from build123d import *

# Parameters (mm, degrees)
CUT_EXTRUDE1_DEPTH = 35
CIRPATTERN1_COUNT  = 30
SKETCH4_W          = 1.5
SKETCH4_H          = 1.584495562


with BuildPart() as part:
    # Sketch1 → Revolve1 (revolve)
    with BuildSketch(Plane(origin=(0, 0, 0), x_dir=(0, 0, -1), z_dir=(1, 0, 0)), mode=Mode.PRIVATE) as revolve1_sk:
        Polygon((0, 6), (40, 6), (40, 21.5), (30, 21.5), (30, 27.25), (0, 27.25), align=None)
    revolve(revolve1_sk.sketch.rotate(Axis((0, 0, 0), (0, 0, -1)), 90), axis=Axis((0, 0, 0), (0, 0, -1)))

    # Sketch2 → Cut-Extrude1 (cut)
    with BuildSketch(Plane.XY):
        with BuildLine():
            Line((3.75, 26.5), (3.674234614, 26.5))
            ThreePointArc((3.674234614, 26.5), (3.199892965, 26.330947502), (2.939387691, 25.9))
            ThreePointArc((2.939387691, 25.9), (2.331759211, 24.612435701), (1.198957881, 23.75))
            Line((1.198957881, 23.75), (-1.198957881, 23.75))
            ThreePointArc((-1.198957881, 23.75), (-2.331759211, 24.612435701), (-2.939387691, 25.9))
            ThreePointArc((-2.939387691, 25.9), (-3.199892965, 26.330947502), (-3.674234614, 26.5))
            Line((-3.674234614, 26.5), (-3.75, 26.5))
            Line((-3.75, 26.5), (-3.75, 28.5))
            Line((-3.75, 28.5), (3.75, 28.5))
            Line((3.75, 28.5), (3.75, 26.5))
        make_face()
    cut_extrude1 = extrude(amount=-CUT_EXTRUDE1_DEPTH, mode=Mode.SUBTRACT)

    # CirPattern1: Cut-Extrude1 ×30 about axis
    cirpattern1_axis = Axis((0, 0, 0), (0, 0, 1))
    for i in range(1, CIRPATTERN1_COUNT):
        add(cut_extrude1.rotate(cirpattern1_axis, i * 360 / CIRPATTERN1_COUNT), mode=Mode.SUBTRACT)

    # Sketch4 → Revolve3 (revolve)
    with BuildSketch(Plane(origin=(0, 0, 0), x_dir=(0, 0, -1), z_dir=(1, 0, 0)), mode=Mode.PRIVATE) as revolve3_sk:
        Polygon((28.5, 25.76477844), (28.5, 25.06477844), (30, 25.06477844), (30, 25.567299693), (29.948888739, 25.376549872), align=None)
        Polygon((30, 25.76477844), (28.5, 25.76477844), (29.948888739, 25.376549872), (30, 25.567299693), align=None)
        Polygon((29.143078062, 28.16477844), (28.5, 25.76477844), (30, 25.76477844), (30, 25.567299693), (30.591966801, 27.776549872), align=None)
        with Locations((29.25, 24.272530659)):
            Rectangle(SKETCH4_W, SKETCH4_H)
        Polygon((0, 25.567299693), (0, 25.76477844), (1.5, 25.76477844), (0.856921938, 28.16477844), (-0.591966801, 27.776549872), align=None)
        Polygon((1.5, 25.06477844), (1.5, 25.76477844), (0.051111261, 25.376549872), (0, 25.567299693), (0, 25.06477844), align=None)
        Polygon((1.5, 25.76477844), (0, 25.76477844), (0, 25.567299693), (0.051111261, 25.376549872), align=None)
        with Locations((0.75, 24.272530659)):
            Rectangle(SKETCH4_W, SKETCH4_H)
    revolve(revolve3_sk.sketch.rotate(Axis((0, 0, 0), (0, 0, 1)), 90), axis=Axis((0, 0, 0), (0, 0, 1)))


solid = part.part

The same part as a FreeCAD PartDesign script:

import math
import FreeCAD as App
import Part
import Sketcher
Q = App.Units.Quantity


def add_polygon(sketch, points):
    """Adds a closed chain of lines whose ends are joined by coincident constraints."""
    first, n = sketch.GeometryCount, len(points)
    for a, b in zip(points, points[1:] + points[:1]):
        sketch.addGeometry(Part.LineSegment(App.Vector(*a, 0), App.Vector(*b, 0)), False)
    for i in range(n):
        sketch.addConstraint(Sketcher.Constraint("Coincident", first + i, 2, first + (i + 1) % n, 1))

doc = App.newDocument("Part")
body = doc.addObject("PartDesign::Body", "Body")

# Sketch on YZ plane
sketch1 = doc.addObject("Sketcher::SketchObject", "Sketch")
body.addObject(sketch1)
sketch1.AttachmentSupport = (doc.YZ_Plane, [""])
sketch1.MapMode = "FlatFace"
add_polygon(sketch1, [(6, 0), (6, -40), (21.5, -40), (21.5, -30), (27.25, -30), (27.25, 0)])  # lines 0-5
sketch1.addConstraint(Sketcher.Constraint("Vertical", 0))
sketch1.addConstraint(Sketcher.Constraint("Horizontal", 1))
sketch1.addConstraint(Sketcher.Constraint("Vertical", 2))
sketch1.addConstraint(Sketcher.Constraint("Horizontal", 3))
sketch1.addConstraint(Sketcher.Constraint("Vertical", 4))
sketch1.addConstraint(Sketcher.Constraint("Horizontal", 5))
sketch1.addConstraint(Sketcher.Constraint("PointOnObject", 4, 2, -1))
sketch1.addConstraint(Sketcher.Constraint("DistanceY", 0, 2, 0, 1, Q("40 mm")))
sketch1.addConstraint(Sketcher.Constraint("DistanceY", 2, 1, 2, 2, Q("10 mm")))
sketch1.addConstraint(Sketcher.Constraint("DistanceX", 1, 1, 1, 2, Q("15.5 mm")))
sketch1.addConstraint(Sketcher.Constraint("DistanceX", -1, 1, 0, 2, Q("6 mm")))
sketch1.addConstraint(Sketcher.Constraint("DistanceX", 3, 1, 3, 2, Q("5.75 mm")))
revolution = doc.addObject("PartDesign::Revolution", "Revolution")
body.addObject(revolution)
revolution.Profile = sketch1
revolution.ReferenceAxis = (sketch1, ["V_Axis"])
revolution.Angle = 360

# Sketch on XY plane
sketch2 = doc.addObject("Sketcher::SketchObject", "Sketch001")
body.addObject(sketch2)
sketch2.AttachmentSupport = (doc.XY_Plane, [""])
sketch2.MapMode = "FlatFace"
sketch2.addGeometry(Part.LineSegment(App.Vector(3.674235, 26.5, 0), App.Vector(3.75, 26.5, 0)), False)
sketch2.addGeometry(Part.LineSegment(App.Vector(3.75, 26.5, 0), App.Vector(3.75, 28.5, 0)), False)
sketch2.addGeometry(Part.LineSegment(App.Vector(3.75, 28.5, 0), App.Vector(-3.75, 28.5, 0)), False)
sketch2.addGeometry(Part.LineSegment(App.Vector(-3.75, 28.5, 0), App.Vector(-3.75, 26.5, 0)), False)
sketch2.addGeometry(Part.LineSegment(App.Vector(-3.75, 26.5, 0), App.Vector(-3.674235, 26.5, 0)), False)
sketch2.addGeometry(Part.ArcOfCircle(Part.Circle(App.Vector(-3.674235, 25.75, 0), App.Vector(0, 0, 1), 0.75), math.radians(11.536959), math.radians(90)), False)
sketch2.addGeometry(Part.ArcOfCircle(Part.Circle(App.Vector(0, 26.5, 0), App.Vector(0, 0, 1), 3), math.radians(-168.463041), math.radians(-113.556464)), False)
sketch2.addGeometry(Part.LineSegment(App.Vector(-1.198958, 23.75, 0), App.Vector(1.198958, 23.75, 0)), False)
sketch2.addGeometry(Part.ArcOfCircle(Part.Circle(App.Vector(0, 26.5, 0), App.Vector(0, 0, 1), 3), math.radians(-66.443536), math.radians(-11.536959)), False)
sketch2.addGeometry(Part.ArcOfCircle(Part.Circle(App.Vector(3.674235, 25.75, 0), App.Vector(0, 0, 1), 0.75), math.radians(90), math.radians(168.463041)), False)
sketch2.addConstraint(Sketcher.Constraint("Coincident", 0, 2, 1, 1))
sketch2.addConstraint(Sketcher.Constraint("Coincident", 1, 2, 2, 1))
sketch2.addConstraint(Sketcher.Constraint("Coincident", 2, 2, 3, 1))
sketch2.addConstraint(Sketcher.Constraint("Coincident", 3, 2, 4, 1))
sketch2.addConstraint(Sketcher.Constraint("Tangent", 4, 2, 5, 2))
sketch2.addConstraint(Sketcher.Constraint("Tangent", 5, 1, 6, 1))
sketch2.addConstraint(Sketcher.Constraint("Coincident", 6, 2, 7, 1))
sketch2.addConstraint(Sketcher.Constraint("Coincident", 7, 2, 8, 1))
sketch2.addConstraint(Sketcher.Constraint("Tangent", 8, 2, 9, 2))
sketch2.addConstraint(Sketcher.Constraint("Tangent", 9, 1, 0, 1))
sketch2.addConstraint(Sketcher.Constraint("Horizontal", 0))
sketch2.addConstraint(Sketcher.Constraint("Vertical", 1))
sketch2.addConstraint(Sketcher.Constraint("Horizontal", 2))
sketch2.addConstraint(Sketcher.Constraint("Vertical", 3))
sketch2.addConstraint(Sketcher.Constraint("Horizontal", 4))
sketch2.addConstraint(Sketcher.Constraint("Horizontal", 7))
sketch2.addConstraint(Sketcher.Constraint("Coincident", 8, 3, 6, 3))
sketch2.addConstraint(Sketcher.Constraint("Equal", 6, 8))
sketch2.addConstraint(Sketcher.Constraint("Equal", 5, 9))
sketch2.addConstraint(Sketcher.Constraint("Symmetric", 5, 3, 9, 3, -2))
sketch2.addConstraint(Sketcher.Constraint("Horizontal", 8, 3, 0, 2))
sketch2.addConstraint(Sketcher.Constraint("Equal", 0, 4))
sketch2.addConstraint(Sketcher.Constraint("Radius", 6, Q("3 mm")))
sketch2.addConstraint(Sketcher.Constraint("DistanceY", 1, 1, 1, 2, Q("2 mm")))
sketch2.addConstraint(Sketcher.Constraint("Radius", 5, Q("0.75 mm")))
sketch2.addConstraint(Sketcher.Constraint("DistanceX", 2, 2, 2, 1, Q("7.5 mm")))
sketch2.addConstraint(Sketcher.Constraint("DistanceY", 6, 2, 5, 3, Q("2 mm")))
sketch2.addConstraint(Sketcher.Constraint("DistanceY", -1, 1, 6, 3, Q("26.5 mm")))
pocket1 = doc.addObject("PartDesign::Pocket", "Pocket")
body.addObject(pocket1)
pocket1.Profile = sketch2
pocket1.Length = 35
doc.recompute()

polarpattern = doc.addObject("PartDesign::PolarPattern", "PolarPattern")
body.addObject(polarpattern)
polarpattern.Originals = [pocket1]
polarpattern.Axis = (doc.Z_Axis, [""])
polarpattern.Angle = 360
polarpattern.Occurrences = 30
body.Tip = polarpattern

# Sketch on YZ plane
sketch3 = doc.addObject("Sketcher::SketchObject", "Sketch002")
body.addObject(sketch3)
sketch3.AttachmentSupport = (doc.YZ_Plane, [""])
sketch3.MapMode = "FlatFace"
add_polygon(sketch3, [(25.764778, -28.5), (23.480283, -28.5), (23.480283, -30), (25.5673, -30), (27.77655, -30.591967), (28.164778, -29.143078)])  # lines 0-5
add_polygon(sketch3, [(25.764778, -1.5), (28.164778, -0.856922), (27.77655, 0.591967), (25.5673, 0), (23.480283, 0), (23.480283, -1.5)])  # lines 6-11
sketch3.addConstraint(Sketcher.Constraint("Horizontal", 0))
sketch3.addConstraint(Sketcher.Constraint("Vertical", 1))
sketch3.addConstraint(Sketcher.Constraint("Horizontal", 2))
sketch3.addConstraint(Sketcher.Constraint("Horizontal", 9))
sketch3.addConstraint(Sketcher.Constraint("Vertical", 10))
sketch3.addConstraint(Sketcher.Constraint("Horizontal", 11))
sketch3.addConstraint(Sketcher.Constraint("PointOnObject", 8, 2, -1))
sketch3.addConstraint(Sketcher.Constraint("Perpendicular", 3, 4))
sketch3.addConstraint(Sketcher.Constraint("Perpendicular", 4, 5))
sketch3.addConstraint(Sketcher.Constraint("Perpendicular", 6, 7))
sketch3.addConstraint(Sketcher.Constraint("Perpendicular", 7, 8))
sketch3.addConstraint(Sketcher.Constraint("Vertical", 4, 2, 6, 2))
sketch3.addConstraint(Sketcher.Constraint("Vertical", 3, 2, 7, 2))
sketch3.addConstraint(Sketcher.Constraint("Vertical", 2, 2, 8, 2))
sketch3.addConstraint(Sketcher.Constraint("Vertical", 1, 2, 9, 2))
sketch3.addConstraint(Sketcher.Constraint("Vertical", 5, 2, 11, 2))
sketch3.addConstraint(Sketcher.Constraint("Equal", 1, 10))
sketch3.addConstraint(Sketcher.Constraint("Angle", 3, Q("-15 deg")))
sketch3.addConstraint(Sketcher.Constraint("DistanceY", 1, 2, 1, 1, Q("1.5 mm")))
sketch3.addConstraint(Sketcher.Constraint("DistanceY", 1, 2, -1, 1, Q("30 mm")))
sketch3.addConstraint(Sketcher.Constraint("Distance", 4, Q("1.5 mm")))
sketch3.addConstraint(Sketcher.Constraint("DistanceX", 5, 2, 4, 2, Q("2.4 mm")))
sketch3.addConstraint(Sketcher.Constraint("DistanceX", -1, 1, 2, 2, Q("25.5673 mm")))
sketch3.addConstraint(Sketcher.Constraint("DistanceX", 0, 2, 0, 1, Q("2.284496 mm")))
revolution2 = doc.addObject("PartDesign::Revolution", "Revolution001")
body.addObject(revolution2)
revolution2.Profile = sketch3
revolution2.ReferenceAxis = (sketch3, ["V_Axis"])
revolution2.Angle = 360

doc.recompute()
